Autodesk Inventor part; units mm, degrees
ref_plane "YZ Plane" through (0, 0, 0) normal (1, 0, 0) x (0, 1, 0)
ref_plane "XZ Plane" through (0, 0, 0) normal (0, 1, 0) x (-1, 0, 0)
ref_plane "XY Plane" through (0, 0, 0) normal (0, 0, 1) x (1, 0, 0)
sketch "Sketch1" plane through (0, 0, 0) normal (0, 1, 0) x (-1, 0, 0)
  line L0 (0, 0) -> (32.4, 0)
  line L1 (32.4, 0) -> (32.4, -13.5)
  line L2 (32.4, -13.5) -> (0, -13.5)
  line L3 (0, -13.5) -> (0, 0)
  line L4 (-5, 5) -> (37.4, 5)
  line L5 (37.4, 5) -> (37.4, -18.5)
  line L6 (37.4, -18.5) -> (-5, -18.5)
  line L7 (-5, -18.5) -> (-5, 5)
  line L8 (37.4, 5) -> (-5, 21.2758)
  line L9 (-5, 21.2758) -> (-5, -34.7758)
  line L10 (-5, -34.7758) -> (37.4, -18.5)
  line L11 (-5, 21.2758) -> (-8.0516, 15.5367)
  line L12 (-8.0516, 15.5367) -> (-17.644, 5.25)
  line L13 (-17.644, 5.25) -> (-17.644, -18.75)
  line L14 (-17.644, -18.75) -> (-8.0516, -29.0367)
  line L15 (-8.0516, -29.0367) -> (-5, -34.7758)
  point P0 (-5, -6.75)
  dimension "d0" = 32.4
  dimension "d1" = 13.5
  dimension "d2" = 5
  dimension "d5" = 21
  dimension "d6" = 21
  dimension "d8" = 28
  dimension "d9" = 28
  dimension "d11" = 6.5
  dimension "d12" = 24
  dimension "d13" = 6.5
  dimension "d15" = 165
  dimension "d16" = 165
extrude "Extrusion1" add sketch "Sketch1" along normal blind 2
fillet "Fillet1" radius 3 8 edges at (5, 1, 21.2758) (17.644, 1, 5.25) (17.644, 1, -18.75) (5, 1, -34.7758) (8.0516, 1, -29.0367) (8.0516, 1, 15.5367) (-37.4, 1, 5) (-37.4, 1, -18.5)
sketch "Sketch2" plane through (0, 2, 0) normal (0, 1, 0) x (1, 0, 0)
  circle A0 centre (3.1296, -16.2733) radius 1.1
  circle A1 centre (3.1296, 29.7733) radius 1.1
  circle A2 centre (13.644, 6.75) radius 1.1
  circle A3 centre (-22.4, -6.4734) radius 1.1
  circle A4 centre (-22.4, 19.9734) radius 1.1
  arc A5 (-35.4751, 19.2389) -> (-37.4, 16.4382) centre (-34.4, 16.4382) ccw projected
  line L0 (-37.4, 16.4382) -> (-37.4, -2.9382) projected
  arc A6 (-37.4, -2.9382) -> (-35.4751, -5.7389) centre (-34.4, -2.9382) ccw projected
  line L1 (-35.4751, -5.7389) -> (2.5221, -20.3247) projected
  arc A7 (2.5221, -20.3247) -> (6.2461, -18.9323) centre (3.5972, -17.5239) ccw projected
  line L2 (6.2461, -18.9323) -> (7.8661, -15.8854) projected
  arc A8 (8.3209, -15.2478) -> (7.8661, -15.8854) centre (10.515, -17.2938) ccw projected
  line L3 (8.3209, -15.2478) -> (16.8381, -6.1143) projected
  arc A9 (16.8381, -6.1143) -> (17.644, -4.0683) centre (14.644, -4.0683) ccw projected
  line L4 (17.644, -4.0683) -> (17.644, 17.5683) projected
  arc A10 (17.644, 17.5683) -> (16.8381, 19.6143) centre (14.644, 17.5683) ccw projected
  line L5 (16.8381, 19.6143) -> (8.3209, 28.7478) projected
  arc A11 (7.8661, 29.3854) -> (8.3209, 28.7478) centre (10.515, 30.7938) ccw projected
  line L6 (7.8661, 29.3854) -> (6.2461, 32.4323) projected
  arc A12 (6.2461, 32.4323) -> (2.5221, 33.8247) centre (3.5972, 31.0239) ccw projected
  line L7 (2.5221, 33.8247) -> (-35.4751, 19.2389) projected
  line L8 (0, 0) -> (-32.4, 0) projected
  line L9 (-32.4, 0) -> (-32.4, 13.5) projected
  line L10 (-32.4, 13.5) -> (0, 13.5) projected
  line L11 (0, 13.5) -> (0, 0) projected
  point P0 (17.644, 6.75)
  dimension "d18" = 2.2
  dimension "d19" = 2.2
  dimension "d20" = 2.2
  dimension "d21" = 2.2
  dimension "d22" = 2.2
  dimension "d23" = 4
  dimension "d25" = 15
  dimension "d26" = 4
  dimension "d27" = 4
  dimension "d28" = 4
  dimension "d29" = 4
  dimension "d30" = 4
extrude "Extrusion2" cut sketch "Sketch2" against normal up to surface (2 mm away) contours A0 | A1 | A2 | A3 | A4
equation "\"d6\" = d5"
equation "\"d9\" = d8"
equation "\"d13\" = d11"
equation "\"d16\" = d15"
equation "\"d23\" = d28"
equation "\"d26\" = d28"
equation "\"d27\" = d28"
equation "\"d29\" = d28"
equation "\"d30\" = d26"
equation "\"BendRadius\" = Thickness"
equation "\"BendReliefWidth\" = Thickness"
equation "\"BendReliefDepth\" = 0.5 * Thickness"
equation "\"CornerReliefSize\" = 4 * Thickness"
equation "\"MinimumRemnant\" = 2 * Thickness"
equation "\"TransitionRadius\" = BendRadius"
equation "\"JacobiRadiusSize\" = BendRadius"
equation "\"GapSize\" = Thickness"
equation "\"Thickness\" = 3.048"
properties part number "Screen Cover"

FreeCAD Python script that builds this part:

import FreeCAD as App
import Part
import Sketcher
from FreeCAD import Vector
Q = App.Units.Quantity


def edges_at(feature, points):
    """Names of the edges that pass closest to the given points."""
    edges = feature.Shape.Edges
    near = lambda p: min(range(len(edges)), key=lambda i: edges[i].distToShape(Part.Vertex(*p))[0])
    return sorted({f"Edge{near(p) + 1}" for p in points})


def add_polygon(sketch, points):
    """Adds a closed chain of lines whose ends are joined by coincident constraints."""
    first, n = sketch.GeometryCount, len(points)
    for a, b in zip(points, points[1:] + points[:1]):
        sketch.addGeometry(Part.LineSegment(App.Vector(*a, 0), App.Vector(*b, 0)), False)
    for i in range(n):
        sketch.addConstraint(Sketcher.Constraint("Coincident", first + i, 2, first + (i + 1) % n, 1))

doc = App.newDocument("Part")
body = doc.addObject("PartDesign::Body", "Body")

# Sketch on XZ plane
sketch1 = body.newObject("Sketcher::SketchObject", "Sketch")
sketch1.AttachmentSupport = (doc.getObject("XZ_Plane"), [""])
sketch1.MapMode = "FlatFace"
add_polygon(sketch1, [(-37, 5), (5, 21), (8, 16), (18, 5), (18, -19), (8, -29), (5, -35), (-37, -18)])  # lines 0-7
add_polygon(sketch1, [(0, 0), (-32, 0), (-32, -14), (0, -14)])  # lines 8-11
sketch1.addConstraint([
    Sketcher.Constraint("Vertical", 3),
    Sketcher.Constraint("Vertical", 7),
    Sketcher.Constraint("Horizontal", 8),
    Sketcher.Constraint("Vertical", 9),
    Sketcher.Constraint("Horizontal", 10),
    Sketcher.Constraint("Vertical", 11),
    Sketcher.Constraint("Coincident", 11, 2, -1, 1),
    Sketcher.Constraint("Vertical", 1, 2, 4, 2),
    Sketcher.Constraint("Vertical", 0, 2, 5, 2),
    Sketcher.Constraint("Equal", 2, 4),
    Sketcher.Constraint("Equal", 1, 5),
    Sketcher.Constraint("Equal", 0, 6),
    Sketcher.Constraint("DistanceY", 3, 2, 3, 1, Q("24 mm")),
    Sketcher.Constraint("Angle", 0, Q("21 deg")),
    Sketcher.Constraint("DistanceX", 8, 2, 8, 1, Q("32.4 mm")),
    Sketcher.Constraint("DistanceY", 9, 2, 9, 1, Q("13.5 mm")),
    Sketcher.Constraint("DistanceX", -1, 1, 0, 2, Q("5 mm")),
    Sketcher.Constraint("DistanceY", -1, 1, 7, 2, Q("5 mm")),
    Sketcher.Constraint("DistanceX", 7, 2, 8, 2, Q("5 mm")),
    Sketcher.Constraint("DistanceY", 6, 2, 9, 2, Q("5 mm")),
    Sketcher.Constraint("Distance", 1, Q("6.5 mm")),
    Sketcher.Constraint("Angle", 1, Q("-61.9995 deg")),
    Sketcher.Constraint("Angle", 2, Q("-47.0003 deg")),
])
pad1 = body.newObject("PartDesign::Pad", "Pad")
pad1.Profile = sketch1
pad1.Length = 2
pad1.Reversed = True
doc.recompute()

fillet = body.newObject("PartDesign::Fillet", "Fillet")
fillet.Base = (pad1, edges_at(pad1, [
    (5, 1, 21.276),
    (17.644, 1, 5.25),
    (17.644, 1, -18.75),
    (5, 1, -34.776),
    (8.052, 1, -29.037),
    (8.052, 1, 15.537),
    (-37.4, 1, 5),
    (-37.4, 1, -18.5),
]))
fillet.Radius = 3

# Sketch on XZ plane
sketch2 = body.newObject("Sketcher::SketchObject", "Sketch001")
sketch2.AttachmentSupport = (doc.getObject("XZ_Plane"), [""])
sketch2.MapMode = "FlatFace"
sketch2.AttachmentOffset = App.Placement(Vector(0, 0, -2), App.Rotation())
sketch2.addGeometry([
    Part.Circle(Vector(3.1, 16.3, 0), Vector(0, 0, 1), 1.1),  # 0
    Part.Circle(Vector(3.1, -29.8, 0), Vector(0, 0, 1), 1.1),  # 1
    Part.Circle(Vector(13.6, -6.8, 0), Vector(0, 0, 1), 1.1),  # 2
    Part.Circle(Vector(-22.4, 6.5, 0), Vector(0, 0, 1), 1.1),  # 3
    Part.Circle(Vector(-22.4, -20, 0), Vector(0, 0, 1), 1.1),  # 4
], False)
sketch2.addConstraint([
    Sketcher.Constraint("Equal", 0, 1),
    Sketcher.Constraint("Equal", 1, 2),
    Sketcher.Constraint("Equal", 2, 3),
    Sketcher.Constraint("Equal", 3, 4),
    Sketcher.Constraint("Vertical", 0, 3, 1, 3),
    Sketcher.Constraint("Vertical", 3, 3, 4, 3),
    Sketcher.Constraint("Diameter", 0, Q("2.2 mm")),
    Sketcher.Constraint("DistanceX", 3, 3, -1, 1, Q("22.4 mm")),
    Sketcher.Constraint("DistanceY", 3, 3, 0, 3, Q("9.8 mm")),
    Sketcher.Constraint("DistanceY", 1, 3, 4, 3, Q("9.8 mm")),
    Sketcher.Constraint("DistanceY", 2, 3, -1, 1, Q("6.75 mm")),
    Sketcher.Constraint("DistanceX", -1, 1, 2, 3, Q("13.644 mm")),
    Sketcher.Constraint("DistanceX", -1, 1, 0, 3, Q("3.1296 mm")),
    Sketcher.Constraint("DistanceY", -1, 1, 0, 3, Q("16.2733 mm")),
    Sketcher.Constraint("DistanceY", 1, 3, -1, 1, Q("29.7733 mm")),
])
pocket1 = body.newObject("PartDesign::Pocket", "Pocket")
pocket1.Profile = sketch2
pocket1.Length = 2
pocket1.Reversed = True

doc.recompute()
